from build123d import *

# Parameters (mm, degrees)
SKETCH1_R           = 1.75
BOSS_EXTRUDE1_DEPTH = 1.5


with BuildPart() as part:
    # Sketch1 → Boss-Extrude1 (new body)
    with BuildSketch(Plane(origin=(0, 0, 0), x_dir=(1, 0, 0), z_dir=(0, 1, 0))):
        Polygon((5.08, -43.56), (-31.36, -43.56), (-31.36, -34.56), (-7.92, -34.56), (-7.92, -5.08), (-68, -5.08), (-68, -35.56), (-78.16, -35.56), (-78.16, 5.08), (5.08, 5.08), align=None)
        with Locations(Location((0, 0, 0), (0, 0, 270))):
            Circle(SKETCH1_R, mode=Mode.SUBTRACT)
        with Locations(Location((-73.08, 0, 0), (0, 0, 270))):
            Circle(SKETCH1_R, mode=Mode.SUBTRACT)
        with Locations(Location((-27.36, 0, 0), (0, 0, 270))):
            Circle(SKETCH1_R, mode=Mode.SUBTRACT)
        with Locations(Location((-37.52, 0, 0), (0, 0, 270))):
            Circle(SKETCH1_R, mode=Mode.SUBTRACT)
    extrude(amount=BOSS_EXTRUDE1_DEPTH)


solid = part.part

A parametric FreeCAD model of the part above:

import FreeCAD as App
import Part
import Sketcher

V = App.Vector

doc = App.newDocument("Part")
params = doc.addObject("Spreadsheet::Sheet", "Params")
for row, (alias, value) in enumerate([
    ("sketch1_diameter", "3.5 mm"),
    ("sketch1_height", "9 mm"),
    ("sketch1_width", "36.44 mm"),
    ("sketch1_width2", "83.24 mm"),
    ("sketch1_width3", "10.16 mm"),
    ("pad1_length", "1.5 mm"),
], start=1):
    params.set(f"A{row}", alias)
    params.set(f"B{row}", "=" + value)
    params.setAlias(f"B{row}", alias)

body = doc.addObject("PartDesign::Body", "Body")

# Sketch on XZ plane
sketch1 = body.newObject("Sketcher::SketchObject", "Sketch")
sketch1.AttachmentSupport = (doc.getObject("XZ_Plane"), [""])
sketch1.MapMode = "FlatFace"
sketch1.addGeometry([
    Part.LineSegment(V(-31.4, 43.6, 0), V(5.1, 43.6, 0)),  # 0
    Part.LineSegment(V(5.1, 43.6, 0), V(5.1, -5.1, 0)),  # 1
    Part.LineSegment(V(5.1, -5.1, 0), V(-78.2, -5.1, 0)),  # 2
    Part.LineSegment(V(-78.2, -5.1, 0), V(-78.2, 35.6, 0)),  # 3
    Part.LineSegment(V(-78.2, 35.6, 0), V(-68, 35.6, 0)),  # 4
    Part.LineSegment(V(-68, 35.6, 0), V(-68, 5.1, 0)),  # 5
    Part.LineSegment(V(-68, 5.1, 0), V(-7.9, 5.1, 0)),  # 6
    Part.LineSegment(V(-7.9, 5.1, 0), V(-7.9, 34.6, 0)),  # 7
    Part.LineSegment(V(-7.9, 34.6, 0), V(-31.4, 34.6, 0)),  # 8
    Part.LineSegment(V(-31.4, 34.6, 0), V(-31.4, 43.6, 0)),  # 9
    Part.Circle(V(0, 0, 0), V(0, 0, 1), 1.8),  # 10
    Part.Circle(V(-27.4, 0, 0), V(0, 0, 1), 1.8),  # 11
    Part.Circle(V(-37.5, 0, 0), V(0, 0, 1), 1.8),  # 12
    Part.Circle(V(-73.1, 0, 0), V(0, 0, 1), 1.8),  # 13
], False)
sketch1.addConstraint([
    Sketcher.Constraint("Coincident", 0, 2, 1, 1),
    Sketcher.Constraint("Coincident", 1, 2, 2, 1),
    Sketcher.Constraint("Coincident", 2, 2, 3, 1),
    Sketcher.Constraint("Coincident", 3, 2, 4, 1),
    Sketcher.Constraint("Coincident", 4, 2, 5, 1),
    Sketcher.Constraint("Coincident", 5, 2, 6, 1),
    Sketcher.Constraint("Coincident", 6, 2, 7, 1),
    Sketcher.Constraint("Coincident", 7, 2, 8, 1),
    Sketcher.Constraint("Coincident", 8, 2, 9, 1),
    Sketcher.Constraint("Coincident", 9, 2, 0, 1),
    Sketcher.Constraint("Horizontal", 0),
    Sketcher.Constraint("Vertical", 1),
    Sketcher.Constraint("Horizontal", 2),
    Sketcher.Constraint("Vertical", 3),
    Sketcher.Constraint("Horizontal", 4),
    Sketcher.Constraint("Vertical", 5),
    Sketcher.Constraint("Horizontal", 6),
    Sketcher.Constraint("Vertical", 7),
    Sketcher.Constraint("Horizontal", 8),
    Sketcher.Constraint("Vertical", 9),
    Sketcher.Constraint("Coincident", 10, 3, -1, 1),
    Sketcher.Constraint("Equal", 10, 11),
    Sketcher.Constraint("Equal", 11, 12),
    Sketcher.Constraint("Equal", 12, 13),
    Sketcher.Constraint("PointOnObject", 11, 3, -1),
    Sketcher.Constraint("PointOnObject", 12, 3, -1),
    Sketcher.Constraint("PointOnObject", 13, 3, -1),
    Sketcher.Constraint("Diameter", 10, 3.5),
    Sketcher.Constraint("DistanceY", 9, 1, 9, 2, 9.0),
    Sketcher.Constraint("DistanceX", 4, 2, -1, 1, 68.0),
    Sketcher.Constraint("DistanceY", 3, 2, 0, 2, 8.0),
    Sketcher.Constraint("DistanceX", 6, 2, 1, 2, 13.0),
    Sketcher.Constraint("DistanceX", 8, 2, 11, 3, 4.0),
    Sketcher.Constraint("DistanceX", 0, 1, 0, 2, 36.44),
    Sketcher.Constraint("DistanceX", 2, 2, 2, 1, 83.24),
    Sketcher.Constraint("DistanceX", 4, 1, 4, 2, 10.16),
    Sketcher.Constraint("DistanceY", 1, 2, 1, 1, 48.64),
    Sketcher.Constraint("DistanceY", 5, 2, 5, 1, 30.48),
    Sketcher.Constraint("DistanceX", 12, 3, 0, 2, 42.6),
    Sketcher.Constraint("DistanceX", 13, 3, -1, 1, 73.08),
    Sketcher.Constraint("DistanceY", -1, 1, 0, 2, 43.56),
])
sketch1.setExpression("Constraints[27]", "Params.sketch1_diameter")
sketch1.setExpression("Constraints[28]", "Params.sketch1_height")
sketch1.setExpression("Constraints[33]", "Params.sketch1_width")
sketch1.setExpression("Constraints[34]", "Params.sketch1_width2")
sketch1.setExpression("Constraints[35]", "Params.sketch1_width3")
pad1 = body.newObject("PartDesign::Pad", "Pad")
pad1.Profile = sketch1
pad1.setExpression("Length", "Params.pad1_length")
pad1.Reversed = True

doc.recompute()
